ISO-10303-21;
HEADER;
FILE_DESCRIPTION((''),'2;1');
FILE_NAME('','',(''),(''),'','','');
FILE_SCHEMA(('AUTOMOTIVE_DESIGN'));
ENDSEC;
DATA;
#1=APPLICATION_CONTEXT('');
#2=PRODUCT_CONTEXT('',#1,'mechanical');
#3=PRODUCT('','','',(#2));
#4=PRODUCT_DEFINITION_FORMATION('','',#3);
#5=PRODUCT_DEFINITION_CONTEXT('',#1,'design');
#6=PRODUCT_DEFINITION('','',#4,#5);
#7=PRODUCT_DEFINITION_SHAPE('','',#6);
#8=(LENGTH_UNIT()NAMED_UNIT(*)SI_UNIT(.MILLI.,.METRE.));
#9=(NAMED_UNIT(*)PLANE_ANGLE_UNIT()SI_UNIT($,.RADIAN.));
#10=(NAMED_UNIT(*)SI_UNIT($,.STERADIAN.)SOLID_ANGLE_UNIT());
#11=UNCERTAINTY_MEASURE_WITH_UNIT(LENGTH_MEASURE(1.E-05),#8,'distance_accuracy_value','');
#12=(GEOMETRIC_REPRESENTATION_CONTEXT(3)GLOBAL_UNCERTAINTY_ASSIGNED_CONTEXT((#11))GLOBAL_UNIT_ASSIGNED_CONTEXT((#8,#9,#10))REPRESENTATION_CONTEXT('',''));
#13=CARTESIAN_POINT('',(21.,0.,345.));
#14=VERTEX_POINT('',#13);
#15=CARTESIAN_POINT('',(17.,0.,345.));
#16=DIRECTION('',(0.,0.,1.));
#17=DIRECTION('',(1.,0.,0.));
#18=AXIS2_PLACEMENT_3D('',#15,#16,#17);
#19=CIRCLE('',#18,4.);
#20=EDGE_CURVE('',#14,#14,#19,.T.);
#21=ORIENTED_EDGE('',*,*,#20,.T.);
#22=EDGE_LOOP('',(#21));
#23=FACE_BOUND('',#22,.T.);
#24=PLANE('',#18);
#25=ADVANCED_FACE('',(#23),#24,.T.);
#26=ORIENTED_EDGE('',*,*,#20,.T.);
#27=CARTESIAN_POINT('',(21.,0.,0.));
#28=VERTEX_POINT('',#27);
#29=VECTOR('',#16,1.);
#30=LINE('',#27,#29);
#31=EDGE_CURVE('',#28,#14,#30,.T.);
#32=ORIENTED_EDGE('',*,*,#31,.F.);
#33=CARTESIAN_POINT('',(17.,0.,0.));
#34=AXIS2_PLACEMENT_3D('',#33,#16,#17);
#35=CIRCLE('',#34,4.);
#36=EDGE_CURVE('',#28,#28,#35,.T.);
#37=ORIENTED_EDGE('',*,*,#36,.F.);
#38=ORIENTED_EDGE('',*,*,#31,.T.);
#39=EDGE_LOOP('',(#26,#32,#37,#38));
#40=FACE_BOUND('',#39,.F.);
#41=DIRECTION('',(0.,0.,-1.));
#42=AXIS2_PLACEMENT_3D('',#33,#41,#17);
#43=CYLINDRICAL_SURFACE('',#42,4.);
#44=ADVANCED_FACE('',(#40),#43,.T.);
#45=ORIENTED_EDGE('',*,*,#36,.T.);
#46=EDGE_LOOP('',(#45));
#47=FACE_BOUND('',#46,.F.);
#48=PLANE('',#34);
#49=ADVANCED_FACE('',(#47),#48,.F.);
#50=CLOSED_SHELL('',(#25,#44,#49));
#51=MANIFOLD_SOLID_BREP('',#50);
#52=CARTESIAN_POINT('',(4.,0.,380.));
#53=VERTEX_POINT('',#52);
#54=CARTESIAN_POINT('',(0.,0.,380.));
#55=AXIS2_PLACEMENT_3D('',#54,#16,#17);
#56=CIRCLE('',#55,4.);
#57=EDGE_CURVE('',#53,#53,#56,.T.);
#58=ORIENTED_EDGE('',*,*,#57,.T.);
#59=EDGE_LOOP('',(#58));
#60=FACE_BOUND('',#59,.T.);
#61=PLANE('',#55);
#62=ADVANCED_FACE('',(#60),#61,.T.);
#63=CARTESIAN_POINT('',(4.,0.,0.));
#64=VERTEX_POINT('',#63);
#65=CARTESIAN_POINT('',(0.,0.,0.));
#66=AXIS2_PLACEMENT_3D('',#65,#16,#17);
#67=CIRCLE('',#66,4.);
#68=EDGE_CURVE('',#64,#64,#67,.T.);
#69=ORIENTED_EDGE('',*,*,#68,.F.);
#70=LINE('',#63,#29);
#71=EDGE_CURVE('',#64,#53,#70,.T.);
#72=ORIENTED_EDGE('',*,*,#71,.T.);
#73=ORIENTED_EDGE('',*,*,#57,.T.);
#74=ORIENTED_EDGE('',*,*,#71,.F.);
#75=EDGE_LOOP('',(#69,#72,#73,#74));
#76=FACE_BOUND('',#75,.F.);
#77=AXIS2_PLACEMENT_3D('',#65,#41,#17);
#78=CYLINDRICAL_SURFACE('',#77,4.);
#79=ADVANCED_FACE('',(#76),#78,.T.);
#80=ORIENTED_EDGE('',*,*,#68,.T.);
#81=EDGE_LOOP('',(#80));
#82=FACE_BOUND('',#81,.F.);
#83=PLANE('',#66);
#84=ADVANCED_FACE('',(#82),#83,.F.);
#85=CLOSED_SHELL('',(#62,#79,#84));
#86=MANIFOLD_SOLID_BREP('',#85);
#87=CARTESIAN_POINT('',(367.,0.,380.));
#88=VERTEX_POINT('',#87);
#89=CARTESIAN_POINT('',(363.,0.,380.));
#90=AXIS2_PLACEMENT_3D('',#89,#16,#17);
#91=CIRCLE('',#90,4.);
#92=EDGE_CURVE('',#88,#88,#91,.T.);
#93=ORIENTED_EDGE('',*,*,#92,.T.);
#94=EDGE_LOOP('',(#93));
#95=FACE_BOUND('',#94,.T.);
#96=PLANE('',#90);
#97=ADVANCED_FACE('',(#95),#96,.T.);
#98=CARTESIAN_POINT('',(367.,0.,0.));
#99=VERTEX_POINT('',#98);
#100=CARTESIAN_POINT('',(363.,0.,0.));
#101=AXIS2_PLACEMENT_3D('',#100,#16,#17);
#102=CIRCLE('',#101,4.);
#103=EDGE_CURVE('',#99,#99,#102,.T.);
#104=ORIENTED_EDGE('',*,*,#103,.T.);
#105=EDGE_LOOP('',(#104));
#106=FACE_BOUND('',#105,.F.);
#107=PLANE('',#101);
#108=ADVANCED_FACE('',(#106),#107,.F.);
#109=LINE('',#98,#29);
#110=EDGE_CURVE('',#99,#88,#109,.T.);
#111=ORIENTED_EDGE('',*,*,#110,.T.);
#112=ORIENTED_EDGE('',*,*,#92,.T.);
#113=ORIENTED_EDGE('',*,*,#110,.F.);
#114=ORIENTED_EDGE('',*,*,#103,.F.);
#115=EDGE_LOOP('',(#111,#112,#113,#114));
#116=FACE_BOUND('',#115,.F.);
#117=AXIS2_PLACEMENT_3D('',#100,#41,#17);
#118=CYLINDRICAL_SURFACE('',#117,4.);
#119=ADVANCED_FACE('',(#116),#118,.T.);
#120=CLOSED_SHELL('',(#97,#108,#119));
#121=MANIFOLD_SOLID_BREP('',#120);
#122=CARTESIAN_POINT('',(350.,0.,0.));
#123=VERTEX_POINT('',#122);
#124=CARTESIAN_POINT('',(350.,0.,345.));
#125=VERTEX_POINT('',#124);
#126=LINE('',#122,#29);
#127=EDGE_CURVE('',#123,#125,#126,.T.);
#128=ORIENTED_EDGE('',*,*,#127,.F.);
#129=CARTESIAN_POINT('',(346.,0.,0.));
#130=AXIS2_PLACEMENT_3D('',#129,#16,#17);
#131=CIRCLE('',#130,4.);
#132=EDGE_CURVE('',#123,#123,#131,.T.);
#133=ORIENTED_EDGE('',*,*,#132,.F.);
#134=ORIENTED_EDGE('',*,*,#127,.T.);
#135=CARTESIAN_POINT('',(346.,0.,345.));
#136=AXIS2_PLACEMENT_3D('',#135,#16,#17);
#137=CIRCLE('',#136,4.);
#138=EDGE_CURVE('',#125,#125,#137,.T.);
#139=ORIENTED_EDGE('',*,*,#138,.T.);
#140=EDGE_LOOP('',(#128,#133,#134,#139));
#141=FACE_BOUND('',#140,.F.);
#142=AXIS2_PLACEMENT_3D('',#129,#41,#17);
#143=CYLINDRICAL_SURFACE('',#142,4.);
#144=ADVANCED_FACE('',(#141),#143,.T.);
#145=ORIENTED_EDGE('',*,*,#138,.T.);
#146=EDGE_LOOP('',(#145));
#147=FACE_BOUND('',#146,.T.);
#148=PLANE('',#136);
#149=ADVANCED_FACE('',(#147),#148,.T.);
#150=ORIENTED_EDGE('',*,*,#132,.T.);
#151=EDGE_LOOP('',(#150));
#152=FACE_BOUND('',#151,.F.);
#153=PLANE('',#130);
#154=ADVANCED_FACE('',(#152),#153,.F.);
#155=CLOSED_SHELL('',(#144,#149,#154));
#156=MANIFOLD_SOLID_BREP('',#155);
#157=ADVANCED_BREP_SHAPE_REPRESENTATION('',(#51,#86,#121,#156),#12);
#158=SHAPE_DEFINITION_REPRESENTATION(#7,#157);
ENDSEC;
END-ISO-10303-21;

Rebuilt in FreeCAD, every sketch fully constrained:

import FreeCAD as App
import Part
import Sketcher
Q = App.Units.Quantity

doc = App.newDocument("Part")
body = doc.addObject("PartDesign::Body", "Body")
body.AllowCompound = True

sketch1 = body.newObject("Sketcher::SketchObject", "Sketch")
sketch1.AttachmentSupport = (doc.getObject("XY_Plane"), [""])
sketch1.MapMode = "FlatFace"
sketch1.addGeometry(Part.Circle(App.Vector(17, 0, 0), App.Vector(0, 0, 1), 4), False)
sketch1.addGeometry(Part.Circle(App.Vector(0, 0, 0), App.Vector(0, 0, 1), 4), False)
sketch1.addGeometry(Part.Circle(App.Vector(346, 0, 0), App.Vector(0, 0, 1), 4), False)
sketch1.addGeometry(Part.Circle(App.Vector(363, 0, 0), App.Vector(0, 0, 1), 4), False)
sketch1.addConstraint(Sketcher.Constraint("Coincident", 1, 3, -1, 1))
sketch1.addConstraint(Sketcher.Constraint("Equal", 0, 1))
sketch1.addConstraint(Sketcher.Constraint("Equal", 1, 2))
sketch1.addConstraint(Sketcher.Constraint("Equal", 2, 3))
sketch1.addConstraint(Sketcher.Constraint("PointOnObject", 0, 3, -1))
sketch1.addConstraint(Sketcher.Constraint("PointOnObject", 2, 3, -1))
sketch1.addConstraint(Sketcher.Constraint("PointOnObject", 3, 3, -1))
sketch1.addConstraint(Sketcher.Constraint("Diameter", 0, Q("8 mm")))
sketch1.addConstraint(Sketcher.Constraint("DistanceX", -1, 1, 0, 3, Q("17 mm")))
sketch1.addConstraint(Sketcher.Constraint("DistanceX", -1, 1, 2, 3, Q("346 mm")))
sketch1.addConstraint(Sketcher.Constraint("DistanceX", -1, 1, 3, 3, Q("363 mm")))
pad1 = body.newObject("PartDesign::Pad", "Pad")
pad1.Profile = sketch1
pad1.Length = 380

sketch2 = body.newObject("Sketcher::SketchObject", "Sketch001")
sketch2.AttachmentSupport = (doc.getObject("XY_Plane"), [""])
sketch2.MapMode = "FlatFace"
sketch2.AttachmentOffset = App.Placement(App.Vector(0, 0, 380), App.Rotation())
sketch2.addGeometry(Part.Circle(App.Vector(17, 0, 0), App.Vector(0, 0, 1), 4), False)
sketch2.addConstraint(Sketcher.Constraint("PointOnObject", 0, 3, -1))
sketch2.addConstraint(Sketcher.Constraint("Diameter", 0, Q("8 mm")))
sketch2.addConstraint(Sketcher.Constraint("DistanceX", -1, 1, 0, 3, Q("17 mm")))
pocket1 = body.newObject("PartDesign::Pocket", "Pocket")
pocket1.Profile = sketch2
pocket1.Length = 35

sketch3 = body.newObject("Sketcher::SketchObject", "Sketch002")
sketch3.AttachmentSupport = (doc.getObject("XY_Plane"), [""])
sketch3.MapMode = "FlatFace"
sketch3.AttachmentOffset = App.Placement(App.Vector(0, 0, 380), App.Rotation())
sketch3.addGeometry(Part.Circle(App.Vector(346, 0, 0), App.Vector(0, 0, 1), 4), False)
sketch3.addConstraint(Sketcher.Constraint("PointOnObject", 0, 3, -1))
sketch3.addConstraint(Sketcher.Constraint("Diameter", 0, Q("8 mm")))
sketch3.addConstraint(Sketcher.Constraint("DistanceX", -1, 1, 0, 3, Q("346 mm")))
pocket2 = body.newObject("PartDesign::Pocket", "Pocket001")
pocket2.Profile = sketch3
pocket2.Length = 35

doc.recompute()
